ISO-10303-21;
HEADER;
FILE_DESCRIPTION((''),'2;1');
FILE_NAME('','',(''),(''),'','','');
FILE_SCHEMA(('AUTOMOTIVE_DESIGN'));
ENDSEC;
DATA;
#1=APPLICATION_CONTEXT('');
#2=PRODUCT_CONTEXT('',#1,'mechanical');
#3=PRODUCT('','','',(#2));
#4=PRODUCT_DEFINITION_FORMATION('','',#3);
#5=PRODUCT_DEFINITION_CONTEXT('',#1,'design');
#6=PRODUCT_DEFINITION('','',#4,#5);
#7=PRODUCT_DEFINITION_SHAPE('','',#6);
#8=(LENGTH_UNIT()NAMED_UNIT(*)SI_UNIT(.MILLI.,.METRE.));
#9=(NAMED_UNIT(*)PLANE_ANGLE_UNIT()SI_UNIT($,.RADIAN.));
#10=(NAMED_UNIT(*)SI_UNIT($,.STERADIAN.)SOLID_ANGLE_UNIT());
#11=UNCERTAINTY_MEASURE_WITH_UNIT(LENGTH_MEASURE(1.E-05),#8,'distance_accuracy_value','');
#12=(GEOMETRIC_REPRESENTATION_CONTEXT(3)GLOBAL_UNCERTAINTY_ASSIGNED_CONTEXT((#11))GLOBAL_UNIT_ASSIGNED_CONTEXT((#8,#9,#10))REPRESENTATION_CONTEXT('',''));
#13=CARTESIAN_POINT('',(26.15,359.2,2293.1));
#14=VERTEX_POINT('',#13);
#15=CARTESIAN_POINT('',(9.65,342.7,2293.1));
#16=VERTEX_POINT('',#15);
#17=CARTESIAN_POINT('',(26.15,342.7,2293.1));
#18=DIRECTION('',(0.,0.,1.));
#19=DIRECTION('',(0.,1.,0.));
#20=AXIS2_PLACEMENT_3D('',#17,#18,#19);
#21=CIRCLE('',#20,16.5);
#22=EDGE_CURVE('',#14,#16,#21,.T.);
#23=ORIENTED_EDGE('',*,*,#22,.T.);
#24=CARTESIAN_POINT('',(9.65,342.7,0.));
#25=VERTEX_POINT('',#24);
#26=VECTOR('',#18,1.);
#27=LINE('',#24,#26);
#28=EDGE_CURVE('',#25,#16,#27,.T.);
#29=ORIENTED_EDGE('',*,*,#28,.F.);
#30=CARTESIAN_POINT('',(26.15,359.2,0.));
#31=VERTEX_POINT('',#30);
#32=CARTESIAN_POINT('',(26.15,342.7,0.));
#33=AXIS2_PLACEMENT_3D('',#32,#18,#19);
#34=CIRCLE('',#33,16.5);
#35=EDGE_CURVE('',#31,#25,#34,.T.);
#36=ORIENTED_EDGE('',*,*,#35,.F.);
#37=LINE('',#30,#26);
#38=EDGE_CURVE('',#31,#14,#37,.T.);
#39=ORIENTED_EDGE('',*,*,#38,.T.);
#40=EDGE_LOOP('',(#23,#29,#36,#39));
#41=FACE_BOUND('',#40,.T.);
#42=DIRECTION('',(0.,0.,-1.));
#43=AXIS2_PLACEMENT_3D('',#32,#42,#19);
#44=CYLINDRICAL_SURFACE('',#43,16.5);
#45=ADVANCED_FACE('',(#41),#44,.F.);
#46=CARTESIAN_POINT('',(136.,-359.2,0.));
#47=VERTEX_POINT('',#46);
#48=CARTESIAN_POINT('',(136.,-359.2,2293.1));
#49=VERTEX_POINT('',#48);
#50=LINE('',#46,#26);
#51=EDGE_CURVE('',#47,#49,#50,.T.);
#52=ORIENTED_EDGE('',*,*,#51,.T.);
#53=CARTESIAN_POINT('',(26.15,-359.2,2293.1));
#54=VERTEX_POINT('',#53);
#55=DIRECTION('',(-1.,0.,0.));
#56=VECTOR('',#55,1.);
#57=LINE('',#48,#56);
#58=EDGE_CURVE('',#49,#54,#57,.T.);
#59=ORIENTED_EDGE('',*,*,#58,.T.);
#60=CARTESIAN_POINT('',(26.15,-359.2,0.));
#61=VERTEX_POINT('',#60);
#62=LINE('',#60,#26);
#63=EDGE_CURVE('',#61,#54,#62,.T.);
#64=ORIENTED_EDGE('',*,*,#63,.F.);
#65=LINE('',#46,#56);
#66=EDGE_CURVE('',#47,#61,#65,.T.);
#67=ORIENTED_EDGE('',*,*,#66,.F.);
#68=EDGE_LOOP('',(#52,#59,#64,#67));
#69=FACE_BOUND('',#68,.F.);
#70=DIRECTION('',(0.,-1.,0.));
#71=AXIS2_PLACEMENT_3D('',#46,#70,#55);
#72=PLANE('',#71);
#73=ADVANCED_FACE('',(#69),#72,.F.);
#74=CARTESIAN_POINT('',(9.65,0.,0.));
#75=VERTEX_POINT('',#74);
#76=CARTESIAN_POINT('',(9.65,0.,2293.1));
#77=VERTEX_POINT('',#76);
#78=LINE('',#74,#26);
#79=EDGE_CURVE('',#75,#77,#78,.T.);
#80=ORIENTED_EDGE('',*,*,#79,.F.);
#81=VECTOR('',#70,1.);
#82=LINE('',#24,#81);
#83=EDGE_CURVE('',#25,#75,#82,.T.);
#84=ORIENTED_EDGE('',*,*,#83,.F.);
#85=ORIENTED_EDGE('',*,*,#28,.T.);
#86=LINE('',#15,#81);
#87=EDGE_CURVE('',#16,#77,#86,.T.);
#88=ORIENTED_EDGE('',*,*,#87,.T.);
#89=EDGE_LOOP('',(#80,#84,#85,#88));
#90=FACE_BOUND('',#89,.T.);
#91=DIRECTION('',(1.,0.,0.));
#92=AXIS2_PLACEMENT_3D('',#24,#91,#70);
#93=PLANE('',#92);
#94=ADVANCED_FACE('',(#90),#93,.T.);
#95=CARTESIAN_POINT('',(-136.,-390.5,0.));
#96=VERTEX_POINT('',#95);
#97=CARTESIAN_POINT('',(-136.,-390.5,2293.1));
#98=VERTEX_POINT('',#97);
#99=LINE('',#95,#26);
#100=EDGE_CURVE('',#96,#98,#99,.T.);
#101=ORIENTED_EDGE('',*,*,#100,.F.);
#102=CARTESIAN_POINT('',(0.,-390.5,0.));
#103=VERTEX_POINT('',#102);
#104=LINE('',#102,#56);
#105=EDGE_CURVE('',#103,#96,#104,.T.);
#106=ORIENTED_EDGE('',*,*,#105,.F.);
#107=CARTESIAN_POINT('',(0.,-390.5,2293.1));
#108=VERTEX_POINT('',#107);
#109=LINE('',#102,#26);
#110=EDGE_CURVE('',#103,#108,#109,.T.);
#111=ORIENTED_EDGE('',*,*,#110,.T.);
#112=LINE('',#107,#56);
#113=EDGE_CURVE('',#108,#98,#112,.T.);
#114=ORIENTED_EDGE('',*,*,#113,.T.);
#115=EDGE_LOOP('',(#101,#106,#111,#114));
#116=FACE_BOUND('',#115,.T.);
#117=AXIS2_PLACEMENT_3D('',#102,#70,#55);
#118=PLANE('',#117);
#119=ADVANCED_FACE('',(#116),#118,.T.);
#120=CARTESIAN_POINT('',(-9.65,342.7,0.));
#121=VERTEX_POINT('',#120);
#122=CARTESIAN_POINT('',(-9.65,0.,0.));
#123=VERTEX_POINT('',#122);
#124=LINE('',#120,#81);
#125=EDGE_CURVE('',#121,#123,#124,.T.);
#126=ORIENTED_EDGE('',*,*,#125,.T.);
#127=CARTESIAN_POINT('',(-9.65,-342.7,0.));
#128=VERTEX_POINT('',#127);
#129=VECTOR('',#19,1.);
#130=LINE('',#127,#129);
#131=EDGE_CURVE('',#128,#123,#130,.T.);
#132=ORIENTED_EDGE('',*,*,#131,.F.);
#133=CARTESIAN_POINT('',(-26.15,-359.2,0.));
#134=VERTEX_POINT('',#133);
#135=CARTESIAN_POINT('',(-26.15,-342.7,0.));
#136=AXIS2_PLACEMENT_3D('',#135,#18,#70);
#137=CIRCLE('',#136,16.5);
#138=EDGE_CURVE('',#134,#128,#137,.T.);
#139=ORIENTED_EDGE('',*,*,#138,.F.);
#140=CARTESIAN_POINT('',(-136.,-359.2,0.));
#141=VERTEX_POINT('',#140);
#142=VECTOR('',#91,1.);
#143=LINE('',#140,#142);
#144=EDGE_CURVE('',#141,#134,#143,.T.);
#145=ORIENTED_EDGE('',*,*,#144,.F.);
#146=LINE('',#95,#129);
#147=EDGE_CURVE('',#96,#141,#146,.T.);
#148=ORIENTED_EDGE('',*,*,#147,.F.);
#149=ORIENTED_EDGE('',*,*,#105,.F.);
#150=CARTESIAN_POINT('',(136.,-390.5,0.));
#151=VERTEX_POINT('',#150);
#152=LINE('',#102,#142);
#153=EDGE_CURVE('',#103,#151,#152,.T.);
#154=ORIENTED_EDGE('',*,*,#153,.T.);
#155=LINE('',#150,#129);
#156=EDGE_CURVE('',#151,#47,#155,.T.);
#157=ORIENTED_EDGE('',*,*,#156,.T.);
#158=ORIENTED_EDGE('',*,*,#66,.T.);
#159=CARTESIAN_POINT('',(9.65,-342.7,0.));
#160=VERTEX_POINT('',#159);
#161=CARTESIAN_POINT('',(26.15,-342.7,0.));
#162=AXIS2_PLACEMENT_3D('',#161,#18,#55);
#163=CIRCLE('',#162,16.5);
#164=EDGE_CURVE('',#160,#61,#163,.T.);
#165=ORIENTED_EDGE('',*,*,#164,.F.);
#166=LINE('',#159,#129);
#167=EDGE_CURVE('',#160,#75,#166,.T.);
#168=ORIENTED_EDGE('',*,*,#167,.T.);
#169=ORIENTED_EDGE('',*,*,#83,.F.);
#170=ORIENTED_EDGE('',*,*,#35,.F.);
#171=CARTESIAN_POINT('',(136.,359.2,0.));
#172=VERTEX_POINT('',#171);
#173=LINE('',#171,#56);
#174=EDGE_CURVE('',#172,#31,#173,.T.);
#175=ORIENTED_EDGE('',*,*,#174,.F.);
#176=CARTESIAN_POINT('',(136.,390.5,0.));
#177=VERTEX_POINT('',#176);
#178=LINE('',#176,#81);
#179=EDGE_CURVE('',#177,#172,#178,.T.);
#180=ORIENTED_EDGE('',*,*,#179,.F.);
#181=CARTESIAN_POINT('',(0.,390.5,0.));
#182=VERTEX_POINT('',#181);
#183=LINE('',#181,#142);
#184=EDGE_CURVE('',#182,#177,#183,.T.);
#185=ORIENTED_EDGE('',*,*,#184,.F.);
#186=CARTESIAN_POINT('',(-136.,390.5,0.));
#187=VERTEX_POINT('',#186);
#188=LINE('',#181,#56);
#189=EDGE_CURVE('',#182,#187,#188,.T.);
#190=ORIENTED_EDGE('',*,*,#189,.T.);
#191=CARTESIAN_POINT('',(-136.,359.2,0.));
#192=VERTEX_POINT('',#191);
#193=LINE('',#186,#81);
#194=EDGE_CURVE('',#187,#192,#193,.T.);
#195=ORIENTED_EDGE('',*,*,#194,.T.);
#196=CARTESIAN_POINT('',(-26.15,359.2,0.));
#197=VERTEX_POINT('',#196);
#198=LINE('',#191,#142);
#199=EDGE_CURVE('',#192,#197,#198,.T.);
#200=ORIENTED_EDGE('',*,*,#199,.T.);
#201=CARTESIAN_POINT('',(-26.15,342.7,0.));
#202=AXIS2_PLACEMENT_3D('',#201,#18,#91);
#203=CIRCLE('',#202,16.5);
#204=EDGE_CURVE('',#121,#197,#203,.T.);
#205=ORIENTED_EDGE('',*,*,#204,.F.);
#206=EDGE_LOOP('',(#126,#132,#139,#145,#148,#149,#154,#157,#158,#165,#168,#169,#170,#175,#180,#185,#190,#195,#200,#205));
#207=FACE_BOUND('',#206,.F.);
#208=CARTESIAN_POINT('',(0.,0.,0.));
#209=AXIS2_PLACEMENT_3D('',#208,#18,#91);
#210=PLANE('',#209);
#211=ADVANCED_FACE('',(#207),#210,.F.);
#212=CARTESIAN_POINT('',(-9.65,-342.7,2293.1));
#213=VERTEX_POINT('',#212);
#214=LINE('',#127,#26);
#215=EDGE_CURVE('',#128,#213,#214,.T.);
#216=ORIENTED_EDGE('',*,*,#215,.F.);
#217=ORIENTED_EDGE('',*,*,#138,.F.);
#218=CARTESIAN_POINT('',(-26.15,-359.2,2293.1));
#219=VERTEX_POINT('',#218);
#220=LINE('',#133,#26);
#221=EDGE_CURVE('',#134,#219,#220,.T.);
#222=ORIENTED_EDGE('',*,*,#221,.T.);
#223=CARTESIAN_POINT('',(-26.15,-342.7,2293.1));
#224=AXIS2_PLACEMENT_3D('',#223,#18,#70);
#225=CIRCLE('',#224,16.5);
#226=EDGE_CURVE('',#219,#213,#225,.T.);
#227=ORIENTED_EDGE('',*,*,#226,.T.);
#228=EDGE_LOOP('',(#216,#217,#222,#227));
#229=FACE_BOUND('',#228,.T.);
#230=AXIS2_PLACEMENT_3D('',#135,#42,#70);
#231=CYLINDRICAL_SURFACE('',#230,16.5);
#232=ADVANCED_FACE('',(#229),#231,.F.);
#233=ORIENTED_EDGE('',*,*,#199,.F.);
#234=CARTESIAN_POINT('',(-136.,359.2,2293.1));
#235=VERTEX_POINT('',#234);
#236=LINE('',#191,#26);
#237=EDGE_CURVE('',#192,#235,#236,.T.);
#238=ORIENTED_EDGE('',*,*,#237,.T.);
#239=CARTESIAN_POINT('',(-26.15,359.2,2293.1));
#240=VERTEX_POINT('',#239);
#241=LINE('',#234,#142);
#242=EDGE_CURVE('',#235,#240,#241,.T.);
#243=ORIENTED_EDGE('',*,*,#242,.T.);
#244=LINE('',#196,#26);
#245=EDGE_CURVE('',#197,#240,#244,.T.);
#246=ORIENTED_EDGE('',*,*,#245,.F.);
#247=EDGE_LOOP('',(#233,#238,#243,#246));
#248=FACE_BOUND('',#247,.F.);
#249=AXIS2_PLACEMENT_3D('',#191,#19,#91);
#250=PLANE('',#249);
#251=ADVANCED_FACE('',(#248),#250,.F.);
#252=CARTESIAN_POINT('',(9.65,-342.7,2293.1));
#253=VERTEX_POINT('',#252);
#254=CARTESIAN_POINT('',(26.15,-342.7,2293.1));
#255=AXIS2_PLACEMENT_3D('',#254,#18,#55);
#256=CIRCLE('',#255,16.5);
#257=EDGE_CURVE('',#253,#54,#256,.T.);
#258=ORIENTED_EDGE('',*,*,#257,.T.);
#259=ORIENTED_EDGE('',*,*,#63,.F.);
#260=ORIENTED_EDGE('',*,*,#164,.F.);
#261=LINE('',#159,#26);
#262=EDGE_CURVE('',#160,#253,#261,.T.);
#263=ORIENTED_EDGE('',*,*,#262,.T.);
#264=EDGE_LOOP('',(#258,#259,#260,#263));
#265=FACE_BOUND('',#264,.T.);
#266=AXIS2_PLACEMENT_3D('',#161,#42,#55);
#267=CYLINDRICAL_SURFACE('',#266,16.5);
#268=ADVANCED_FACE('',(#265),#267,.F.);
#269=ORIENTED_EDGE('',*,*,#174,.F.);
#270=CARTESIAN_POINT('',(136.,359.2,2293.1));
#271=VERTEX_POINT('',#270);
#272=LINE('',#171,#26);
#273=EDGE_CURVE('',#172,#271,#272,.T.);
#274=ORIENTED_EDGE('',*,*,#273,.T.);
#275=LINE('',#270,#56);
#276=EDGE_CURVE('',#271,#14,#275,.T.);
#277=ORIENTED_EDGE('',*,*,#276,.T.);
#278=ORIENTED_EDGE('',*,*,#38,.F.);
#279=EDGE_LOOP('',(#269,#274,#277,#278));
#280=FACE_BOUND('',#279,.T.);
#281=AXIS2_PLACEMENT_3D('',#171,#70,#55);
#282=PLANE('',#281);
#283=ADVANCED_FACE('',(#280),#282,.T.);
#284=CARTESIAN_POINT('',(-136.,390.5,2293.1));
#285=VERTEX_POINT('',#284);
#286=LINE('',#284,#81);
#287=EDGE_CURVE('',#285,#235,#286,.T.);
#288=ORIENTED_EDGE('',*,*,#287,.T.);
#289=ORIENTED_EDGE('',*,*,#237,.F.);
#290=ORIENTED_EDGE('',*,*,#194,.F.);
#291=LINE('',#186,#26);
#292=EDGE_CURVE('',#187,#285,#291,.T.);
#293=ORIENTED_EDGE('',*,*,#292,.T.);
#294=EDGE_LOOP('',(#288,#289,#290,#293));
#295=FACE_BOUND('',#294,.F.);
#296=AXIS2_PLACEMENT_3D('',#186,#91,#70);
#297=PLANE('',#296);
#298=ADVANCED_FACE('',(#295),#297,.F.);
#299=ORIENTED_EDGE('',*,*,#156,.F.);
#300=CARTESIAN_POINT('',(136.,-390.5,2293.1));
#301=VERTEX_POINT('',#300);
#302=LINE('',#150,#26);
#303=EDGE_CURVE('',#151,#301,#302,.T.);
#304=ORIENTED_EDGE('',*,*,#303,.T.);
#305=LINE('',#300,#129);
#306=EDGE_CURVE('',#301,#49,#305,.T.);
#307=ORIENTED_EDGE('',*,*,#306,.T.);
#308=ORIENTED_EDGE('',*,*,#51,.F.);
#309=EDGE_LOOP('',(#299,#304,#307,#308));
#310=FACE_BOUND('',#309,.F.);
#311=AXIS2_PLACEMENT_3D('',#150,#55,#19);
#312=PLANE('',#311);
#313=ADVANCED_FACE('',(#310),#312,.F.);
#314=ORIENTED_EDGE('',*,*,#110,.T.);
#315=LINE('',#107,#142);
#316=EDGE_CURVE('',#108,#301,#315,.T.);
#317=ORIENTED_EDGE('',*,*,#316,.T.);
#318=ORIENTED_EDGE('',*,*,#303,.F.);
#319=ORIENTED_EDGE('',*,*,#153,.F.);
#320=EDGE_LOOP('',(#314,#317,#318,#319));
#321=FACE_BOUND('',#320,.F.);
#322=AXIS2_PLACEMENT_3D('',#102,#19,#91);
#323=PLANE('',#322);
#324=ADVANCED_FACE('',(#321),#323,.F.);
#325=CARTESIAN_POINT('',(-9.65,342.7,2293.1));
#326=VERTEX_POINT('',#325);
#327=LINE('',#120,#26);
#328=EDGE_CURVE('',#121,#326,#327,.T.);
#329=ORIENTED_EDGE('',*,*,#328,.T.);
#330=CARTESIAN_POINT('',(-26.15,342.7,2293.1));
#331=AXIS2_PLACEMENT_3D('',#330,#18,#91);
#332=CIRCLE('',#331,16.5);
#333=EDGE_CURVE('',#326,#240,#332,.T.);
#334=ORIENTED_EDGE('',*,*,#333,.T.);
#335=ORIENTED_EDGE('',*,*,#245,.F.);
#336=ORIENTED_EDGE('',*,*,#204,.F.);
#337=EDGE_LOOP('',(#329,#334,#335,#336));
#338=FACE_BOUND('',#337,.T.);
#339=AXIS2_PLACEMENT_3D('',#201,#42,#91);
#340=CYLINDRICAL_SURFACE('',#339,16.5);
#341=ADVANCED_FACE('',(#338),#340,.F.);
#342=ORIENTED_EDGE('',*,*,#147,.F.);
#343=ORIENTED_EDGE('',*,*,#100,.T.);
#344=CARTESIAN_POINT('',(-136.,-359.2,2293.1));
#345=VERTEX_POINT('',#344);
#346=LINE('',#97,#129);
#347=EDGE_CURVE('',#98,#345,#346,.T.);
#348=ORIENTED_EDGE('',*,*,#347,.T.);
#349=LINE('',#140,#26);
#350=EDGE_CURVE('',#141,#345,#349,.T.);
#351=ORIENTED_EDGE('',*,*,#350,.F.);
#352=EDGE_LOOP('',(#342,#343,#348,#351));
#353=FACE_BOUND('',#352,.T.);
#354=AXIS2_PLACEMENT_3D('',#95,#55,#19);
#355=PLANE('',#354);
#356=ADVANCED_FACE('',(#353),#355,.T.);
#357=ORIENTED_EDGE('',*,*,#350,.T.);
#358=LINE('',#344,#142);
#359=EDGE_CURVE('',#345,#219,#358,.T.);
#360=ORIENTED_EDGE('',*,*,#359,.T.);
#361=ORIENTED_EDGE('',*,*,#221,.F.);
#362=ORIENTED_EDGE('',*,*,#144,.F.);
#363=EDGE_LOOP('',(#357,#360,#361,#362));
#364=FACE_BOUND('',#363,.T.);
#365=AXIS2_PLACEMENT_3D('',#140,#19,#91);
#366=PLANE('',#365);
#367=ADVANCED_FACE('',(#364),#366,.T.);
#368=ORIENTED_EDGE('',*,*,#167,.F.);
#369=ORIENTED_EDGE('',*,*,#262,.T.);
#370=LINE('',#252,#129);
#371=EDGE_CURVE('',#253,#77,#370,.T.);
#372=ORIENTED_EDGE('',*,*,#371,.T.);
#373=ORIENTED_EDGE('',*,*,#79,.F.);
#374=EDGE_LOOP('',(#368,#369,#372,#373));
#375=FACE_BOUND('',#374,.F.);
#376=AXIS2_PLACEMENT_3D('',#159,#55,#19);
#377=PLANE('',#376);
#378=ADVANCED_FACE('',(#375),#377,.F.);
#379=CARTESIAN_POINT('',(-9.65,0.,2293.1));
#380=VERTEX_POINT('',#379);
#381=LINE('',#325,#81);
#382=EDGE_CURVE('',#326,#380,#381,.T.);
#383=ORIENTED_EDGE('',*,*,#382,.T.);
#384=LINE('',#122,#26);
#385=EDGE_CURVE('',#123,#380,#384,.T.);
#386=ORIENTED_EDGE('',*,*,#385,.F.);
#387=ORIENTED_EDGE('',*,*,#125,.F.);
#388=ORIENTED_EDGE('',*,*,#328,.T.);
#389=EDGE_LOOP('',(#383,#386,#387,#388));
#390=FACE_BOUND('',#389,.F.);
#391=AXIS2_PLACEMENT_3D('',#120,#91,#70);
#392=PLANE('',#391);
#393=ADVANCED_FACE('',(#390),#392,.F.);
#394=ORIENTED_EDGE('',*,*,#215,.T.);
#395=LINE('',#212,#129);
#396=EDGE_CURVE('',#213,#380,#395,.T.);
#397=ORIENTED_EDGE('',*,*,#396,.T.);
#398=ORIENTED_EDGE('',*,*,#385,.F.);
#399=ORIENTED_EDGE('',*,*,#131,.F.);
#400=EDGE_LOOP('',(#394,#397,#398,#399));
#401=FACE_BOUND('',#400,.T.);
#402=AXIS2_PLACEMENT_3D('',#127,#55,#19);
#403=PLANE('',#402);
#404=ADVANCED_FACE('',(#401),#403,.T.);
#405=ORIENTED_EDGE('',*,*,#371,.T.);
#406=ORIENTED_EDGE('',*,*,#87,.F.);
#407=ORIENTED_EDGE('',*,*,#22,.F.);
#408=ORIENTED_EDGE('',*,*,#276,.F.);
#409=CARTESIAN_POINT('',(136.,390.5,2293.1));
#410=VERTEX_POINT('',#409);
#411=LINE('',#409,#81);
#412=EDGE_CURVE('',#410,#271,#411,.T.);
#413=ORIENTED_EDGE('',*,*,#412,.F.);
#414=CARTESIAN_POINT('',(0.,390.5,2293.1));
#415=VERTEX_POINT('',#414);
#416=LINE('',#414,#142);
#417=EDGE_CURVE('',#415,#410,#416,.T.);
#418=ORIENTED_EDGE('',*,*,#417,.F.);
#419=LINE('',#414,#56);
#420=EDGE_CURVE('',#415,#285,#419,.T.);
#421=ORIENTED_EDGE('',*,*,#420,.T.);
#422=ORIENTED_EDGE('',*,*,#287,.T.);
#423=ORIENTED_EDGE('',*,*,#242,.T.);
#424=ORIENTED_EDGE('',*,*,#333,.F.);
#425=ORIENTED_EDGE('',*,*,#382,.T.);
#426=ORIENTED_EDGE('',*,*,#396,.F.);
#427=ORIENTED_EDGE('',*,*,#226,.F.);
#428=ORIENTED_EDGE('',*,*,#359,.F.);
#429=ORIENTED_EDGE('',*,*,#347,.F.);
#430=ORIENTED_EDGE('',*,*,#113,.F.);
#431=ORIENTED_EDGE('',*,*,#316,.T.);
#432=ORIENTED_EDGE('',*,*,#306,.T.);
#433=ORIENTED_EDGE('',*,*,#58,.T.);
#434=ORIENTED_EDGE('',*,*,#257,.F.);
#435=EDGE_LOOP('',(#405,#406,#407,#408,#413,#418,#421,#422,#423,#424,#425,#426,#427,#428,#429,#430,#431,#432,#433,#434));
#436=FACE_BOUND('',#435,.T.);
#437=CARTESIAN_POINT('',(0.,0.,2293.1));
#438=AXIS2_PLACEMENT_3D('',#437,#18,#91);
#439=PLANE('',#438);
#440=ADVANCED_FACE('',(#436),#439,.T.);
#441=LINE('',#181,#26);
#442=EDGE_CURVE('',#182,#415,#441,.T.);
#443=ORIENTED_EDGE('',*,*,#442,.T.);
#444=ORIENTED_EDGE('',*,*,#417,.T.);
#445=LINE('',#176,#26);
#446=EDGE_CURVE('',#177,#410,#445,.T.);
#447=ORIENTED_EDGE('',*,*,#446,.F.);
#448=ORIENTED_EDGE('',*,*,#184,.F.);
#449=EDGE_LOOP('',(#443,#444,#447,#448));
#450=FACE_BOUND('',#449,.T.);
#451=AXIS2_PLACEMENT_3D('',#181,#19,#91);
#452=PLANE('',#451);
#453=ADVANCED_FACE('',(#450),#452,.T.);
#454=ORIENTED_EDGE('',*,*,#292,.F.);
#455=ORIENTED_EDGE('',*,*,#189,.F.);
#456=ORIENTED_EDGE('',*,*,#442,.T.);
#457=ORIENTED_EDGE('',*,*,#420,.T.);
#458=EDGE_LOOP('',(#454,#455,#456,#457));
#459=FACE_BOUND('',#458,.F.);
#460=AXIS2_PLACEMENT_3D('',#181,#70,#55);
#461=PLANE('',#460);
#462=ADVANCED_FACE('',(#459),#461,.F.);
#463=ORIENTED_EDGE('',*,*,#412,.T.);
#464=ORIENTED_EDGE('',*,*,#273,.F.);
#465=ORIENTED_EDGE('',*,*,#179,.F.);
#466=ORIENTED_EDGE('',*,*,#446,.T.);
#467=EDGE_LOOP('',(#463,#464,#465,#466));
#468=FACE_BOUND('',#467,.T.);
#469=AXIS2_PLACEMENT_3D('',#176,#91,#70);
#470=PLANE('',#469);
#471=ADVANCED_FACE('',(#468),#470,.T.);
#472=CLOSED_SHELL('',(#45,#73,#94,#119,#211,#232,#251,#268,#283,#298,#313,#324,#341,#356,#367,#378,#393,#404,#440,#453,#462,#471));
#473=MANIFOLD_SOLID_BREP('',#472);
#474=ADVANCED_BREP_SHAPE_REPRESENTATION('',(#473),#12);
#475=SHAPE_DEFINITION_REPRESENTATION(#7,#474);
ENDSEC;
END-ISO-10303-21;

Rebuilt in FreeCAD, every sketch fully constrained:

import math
import FreeCAD as App
import Part
import Sketcher
from FreeCAD import Vector

doc = App.newDocument("Part")
body = doc.addObject("PartDesign::Body", "Body")

sketch1 = doc.addObject("Sketcher::SketchObject", "Sketch")
body.addObject(sketch1)
sketch1.AttachmentSupport = (doc.XY_Plane, [""])
sketch1.MapMode = "FlatFace"
sketch1.addGeometry([
    Part.LineSegment(Vector(-136, -359.2, 0), Vector(-136, -390.5, 0)),
    Part.LineSegment(Vector(-136, -390.5, 0), Vector(136, -390.5, 0)),
    Part.LineSegment(Vector(136, -390.5, 0), Vector(136, -359.2, 0)),
    Part.LineSegment(Vector(136, -359.2, 0), Vector(26.15, -359.2, 0)),
    Part.ArcOfCircle(Part.Circle(Vector(26.15, -342.7, 0), Vector(0, 0, 1), 16.5), math.radians(180), math.radians(270)),
    Part.LineSegment(Vector(9.65, -342.7, 0), Vector(9.65, 342.7, 0)),
    Part.ArcOfCircle(Part.Circle(Vector(26.15, 342.7, 0), Vector(0, 0, 1), 16.5), math.radians(90), math.radians(180)),
    Part.LineSegment(Vector(26.15, 359.2, 0), Vector(136, 359.2, 0)),
    Part.LineSegment(Vector(136, 359.2, 0), Vector(136, 390.5, 0)),
    Part.LineSegment(Vector(136, 390.5, 0), Vector(-136, 390.5, 0)),
    Part.LineSegment(Vector(-136, 390.5, 0), Vector(-136, 359.2, 0)),
    Part.LineSegment(Vector(-136, 359.2, 0), Vector(-26.15, 359.2, 0)),
    Part.ArcOfCircle(Part.Circle(Vector(-26.15, 342.7, 0), Vector(0, 0, 1), 16.5), math.radians(0), math.radians(90)),
    Part.LineSegment(Vector(-9.65, 342.7, 0), Vector(-9.65, -342.7, 0)),
    Part.ArcOfCircle(Part.Circle(Vector(-26.15, -342.7, 0), Vector(0, 0, 1), 16.5), math.radians(-90), math.radians(0)),
    Part.LineSegment(Vector(-26.15, -359.2, 0), Vector(-136, -359.2, 0)),
], False)
sketch1.addConstraint([
    Sketcher.Constraint("Coincident", 0, 2, 1, 1),
    Sketcher.Constraint("Coincident", 1, 2, 2, 1),
    Sketcher.Constraint("Coincident", 2, 2, 3, 1),
    Sketcher.Constraint("Tangent", 3, 2, 4, 2),
    Sketcher.Constraint("Tangent", 4, 1, 5, 1),
    Sketcher.Constraint("Tangent", 5, 2, 6, 2),
    Sketcher.Constraint("Tangent", 6, 1, 7, 1),
    Sketcher.Constraint("Coincident", 7, 2, 8, 1),
    Sketcher.Constraint("Coincident", 8, 2, 9, 1),
    Sketcher.Constraint("Coincident", 9, 2, 10, 1),
    Sketcher.Constraint("Coincident", 10, 2, 11, 1),
    Sketcher.Constraint("Tangent", 11, 2, 12, 2),
    Sketcher.Constraint("Tangent", 12, 1, 13, 1),
    Sketcher.Constraint("Tangent", 13, 2, 14, 2),
    Sketcher.Constraint("Tangent", 14, 1, 15, 1),
    Sketcher.Constraint("Coincident", 15, 2, 0, 1),
    Sketcher.Constraint("Vertical", 0),
    Sketcher.Constraint("Horizontal", 1),
    Sketcher.Constraint("Vertical", 2),
    Sketcher.Constraint("Horizontal", 3),
    Sketcher.Constraint("Vertical", 5),
    Sketcher.Constraint("Horizontal", 7),
    Sketcher.Constraint("Vertical", 8),
    Sketcher.Constraint("Horizontal", 9),
    Sketcher.Constraint("Vertical", 10),
    Sketcher.Constraint("Horizontal", 11),
    Sketcher.Constraint("Vertical", 13),
    Sketcher.Constraint("Horizontal", 15),
    Sketcher.Constraint("Equal", 4, 6),
    Sketcher.Constraint("Equal", 6, 12),
    Sketcher.Constraint("Equal", 12, 14),
    Sketcher.Constraint("Symmetric", 4, 3, 12, 3, -1, 1),
    Sketcher.Constraint("Symmetric", 0, 2, 8, 2, -1, 1),
    Sketcher.Constraint("Symmetric", 7, 2, 10, 2, -2),
    Sketcher.Constraint("Symmetric", 2, 2, 15, 2, -2),
    Sketcher.Constraint("Radius", 4, 16.5),
    Sketcher.Constraint("DistanceY", 0, 2, 0, 1, 31.3),
    Sketcher.Constraint("DistanceX", 0, 2, -1, 1, 136.0),
    Sketcher.Constraint("DistanceY", 0, 2, -1, 1, 390.5),
    Sketcher.Constraint("DistanceX", -1, 1, 4, 1, 9.65),
])
pad1 = doc.addObject("PartDesign::Pad", "Pad")
body.addObject(pad1)
pad1.Profile = sketch1
pad1.Length = 2293.1

doc.recompute()
